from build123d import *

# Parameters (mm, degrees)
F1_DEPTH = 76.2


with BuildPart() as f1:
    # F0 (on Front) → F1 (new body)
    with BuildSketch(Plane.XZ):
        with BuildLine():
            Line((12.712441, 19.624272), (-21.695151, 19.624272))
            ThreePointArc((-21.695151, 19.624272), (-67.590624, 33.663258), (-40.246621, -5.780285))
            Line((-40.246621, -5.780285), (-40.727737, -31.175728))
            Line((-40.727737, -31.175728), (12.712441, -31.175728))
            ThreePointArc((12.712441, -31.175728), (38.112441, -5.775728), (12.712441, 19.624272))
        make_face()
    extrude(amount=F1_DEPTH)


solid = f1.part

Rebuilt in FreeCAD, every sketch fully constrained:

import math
import FreeCAD as App
import Part
import Sketcher

V = App.Vector
Q = App.Units.Quantity

doc = App.newDocument("Part")
body = doc.addObject("PartDesign::Body", "Body")

# Sketch on XZ plane
sketch1 = body.newObject("Sketcher::SketchObject", "Sketch")
sketch1.AttachmentSupport = (doc.getObject("XZ_Plane"), [""])
sketch1.MapMode = "FlatFace"
sketch1.addGeometry([
    Part.LineSegment(V(13, 20, 0), V(-22, 20, 0)),  # 0
    Part.ArcOfCircle(Part.Circle(V(-47, 19, 0), V(0, 0, 1), 25), math.radians(2), math.radians(286)),  # 1
    Part.LineSegment(V(-40, -6, 0), V(-41, -31, 0)),  # 2
    Part.LineSegment(V(-41, -31, 0), V(13, -31, 0)),  # 3
    Part.ArcOfCircle(Part.Circle(V(13, -6, 0), V(0, 0, 1), 25), math.radians(-90), math.radians(90)),  # 4
], False)
sketch1.addConstraint([
    Sketcher.Constraint("Coincident", 0, 2, 1, 1),
    Sketcher.Constraint("Coincident", 1, 2, 2, 1),
    Sketcher.Constraint("Coincident", 2, 2, 3, 1),
    Sketcher.Constraint("Tangent", 3, 2, 4, 1),
    Sketcher.Constraint("Tangent", 4, 2, 0, 1),
    Sketcher.Constraint("Horizontal", 0),
    Sketcher.Constraint("Horizontal", 3),
    Sketcher.Constraint("Equal", 1, 4),
    Sketcher.Constraint("Radius", 1, Q("1 in")),
    Sketcher.Constraint("Distance", 2, Q("1 in")),
    Sketcher.Constraint("DistanceX", 1, 3, 2, 2, Q("0.25 in")),
    Sketcher.Constraint("DistanceX", 0, 2, 0, 1, Q("34.407592 mm")),
    Sketcher.Constraint("DistanceX", 3, 1, 3, 2, Q("53.440178 mm")),
    Sketcher.Constraint("DistanceY", -1, 1, 1, 3, Q("18.68389 mm")),
    Sketcher.Constraint("DistanceX", -1, 1, 4, 3, Q("12.712441 mm")),
])
pad1 = body.newObject("PartDesign::Pad", "Pad")
pad1.Profile = sketch1
pad1.Length = Q("3 in")

doc.recompute()
